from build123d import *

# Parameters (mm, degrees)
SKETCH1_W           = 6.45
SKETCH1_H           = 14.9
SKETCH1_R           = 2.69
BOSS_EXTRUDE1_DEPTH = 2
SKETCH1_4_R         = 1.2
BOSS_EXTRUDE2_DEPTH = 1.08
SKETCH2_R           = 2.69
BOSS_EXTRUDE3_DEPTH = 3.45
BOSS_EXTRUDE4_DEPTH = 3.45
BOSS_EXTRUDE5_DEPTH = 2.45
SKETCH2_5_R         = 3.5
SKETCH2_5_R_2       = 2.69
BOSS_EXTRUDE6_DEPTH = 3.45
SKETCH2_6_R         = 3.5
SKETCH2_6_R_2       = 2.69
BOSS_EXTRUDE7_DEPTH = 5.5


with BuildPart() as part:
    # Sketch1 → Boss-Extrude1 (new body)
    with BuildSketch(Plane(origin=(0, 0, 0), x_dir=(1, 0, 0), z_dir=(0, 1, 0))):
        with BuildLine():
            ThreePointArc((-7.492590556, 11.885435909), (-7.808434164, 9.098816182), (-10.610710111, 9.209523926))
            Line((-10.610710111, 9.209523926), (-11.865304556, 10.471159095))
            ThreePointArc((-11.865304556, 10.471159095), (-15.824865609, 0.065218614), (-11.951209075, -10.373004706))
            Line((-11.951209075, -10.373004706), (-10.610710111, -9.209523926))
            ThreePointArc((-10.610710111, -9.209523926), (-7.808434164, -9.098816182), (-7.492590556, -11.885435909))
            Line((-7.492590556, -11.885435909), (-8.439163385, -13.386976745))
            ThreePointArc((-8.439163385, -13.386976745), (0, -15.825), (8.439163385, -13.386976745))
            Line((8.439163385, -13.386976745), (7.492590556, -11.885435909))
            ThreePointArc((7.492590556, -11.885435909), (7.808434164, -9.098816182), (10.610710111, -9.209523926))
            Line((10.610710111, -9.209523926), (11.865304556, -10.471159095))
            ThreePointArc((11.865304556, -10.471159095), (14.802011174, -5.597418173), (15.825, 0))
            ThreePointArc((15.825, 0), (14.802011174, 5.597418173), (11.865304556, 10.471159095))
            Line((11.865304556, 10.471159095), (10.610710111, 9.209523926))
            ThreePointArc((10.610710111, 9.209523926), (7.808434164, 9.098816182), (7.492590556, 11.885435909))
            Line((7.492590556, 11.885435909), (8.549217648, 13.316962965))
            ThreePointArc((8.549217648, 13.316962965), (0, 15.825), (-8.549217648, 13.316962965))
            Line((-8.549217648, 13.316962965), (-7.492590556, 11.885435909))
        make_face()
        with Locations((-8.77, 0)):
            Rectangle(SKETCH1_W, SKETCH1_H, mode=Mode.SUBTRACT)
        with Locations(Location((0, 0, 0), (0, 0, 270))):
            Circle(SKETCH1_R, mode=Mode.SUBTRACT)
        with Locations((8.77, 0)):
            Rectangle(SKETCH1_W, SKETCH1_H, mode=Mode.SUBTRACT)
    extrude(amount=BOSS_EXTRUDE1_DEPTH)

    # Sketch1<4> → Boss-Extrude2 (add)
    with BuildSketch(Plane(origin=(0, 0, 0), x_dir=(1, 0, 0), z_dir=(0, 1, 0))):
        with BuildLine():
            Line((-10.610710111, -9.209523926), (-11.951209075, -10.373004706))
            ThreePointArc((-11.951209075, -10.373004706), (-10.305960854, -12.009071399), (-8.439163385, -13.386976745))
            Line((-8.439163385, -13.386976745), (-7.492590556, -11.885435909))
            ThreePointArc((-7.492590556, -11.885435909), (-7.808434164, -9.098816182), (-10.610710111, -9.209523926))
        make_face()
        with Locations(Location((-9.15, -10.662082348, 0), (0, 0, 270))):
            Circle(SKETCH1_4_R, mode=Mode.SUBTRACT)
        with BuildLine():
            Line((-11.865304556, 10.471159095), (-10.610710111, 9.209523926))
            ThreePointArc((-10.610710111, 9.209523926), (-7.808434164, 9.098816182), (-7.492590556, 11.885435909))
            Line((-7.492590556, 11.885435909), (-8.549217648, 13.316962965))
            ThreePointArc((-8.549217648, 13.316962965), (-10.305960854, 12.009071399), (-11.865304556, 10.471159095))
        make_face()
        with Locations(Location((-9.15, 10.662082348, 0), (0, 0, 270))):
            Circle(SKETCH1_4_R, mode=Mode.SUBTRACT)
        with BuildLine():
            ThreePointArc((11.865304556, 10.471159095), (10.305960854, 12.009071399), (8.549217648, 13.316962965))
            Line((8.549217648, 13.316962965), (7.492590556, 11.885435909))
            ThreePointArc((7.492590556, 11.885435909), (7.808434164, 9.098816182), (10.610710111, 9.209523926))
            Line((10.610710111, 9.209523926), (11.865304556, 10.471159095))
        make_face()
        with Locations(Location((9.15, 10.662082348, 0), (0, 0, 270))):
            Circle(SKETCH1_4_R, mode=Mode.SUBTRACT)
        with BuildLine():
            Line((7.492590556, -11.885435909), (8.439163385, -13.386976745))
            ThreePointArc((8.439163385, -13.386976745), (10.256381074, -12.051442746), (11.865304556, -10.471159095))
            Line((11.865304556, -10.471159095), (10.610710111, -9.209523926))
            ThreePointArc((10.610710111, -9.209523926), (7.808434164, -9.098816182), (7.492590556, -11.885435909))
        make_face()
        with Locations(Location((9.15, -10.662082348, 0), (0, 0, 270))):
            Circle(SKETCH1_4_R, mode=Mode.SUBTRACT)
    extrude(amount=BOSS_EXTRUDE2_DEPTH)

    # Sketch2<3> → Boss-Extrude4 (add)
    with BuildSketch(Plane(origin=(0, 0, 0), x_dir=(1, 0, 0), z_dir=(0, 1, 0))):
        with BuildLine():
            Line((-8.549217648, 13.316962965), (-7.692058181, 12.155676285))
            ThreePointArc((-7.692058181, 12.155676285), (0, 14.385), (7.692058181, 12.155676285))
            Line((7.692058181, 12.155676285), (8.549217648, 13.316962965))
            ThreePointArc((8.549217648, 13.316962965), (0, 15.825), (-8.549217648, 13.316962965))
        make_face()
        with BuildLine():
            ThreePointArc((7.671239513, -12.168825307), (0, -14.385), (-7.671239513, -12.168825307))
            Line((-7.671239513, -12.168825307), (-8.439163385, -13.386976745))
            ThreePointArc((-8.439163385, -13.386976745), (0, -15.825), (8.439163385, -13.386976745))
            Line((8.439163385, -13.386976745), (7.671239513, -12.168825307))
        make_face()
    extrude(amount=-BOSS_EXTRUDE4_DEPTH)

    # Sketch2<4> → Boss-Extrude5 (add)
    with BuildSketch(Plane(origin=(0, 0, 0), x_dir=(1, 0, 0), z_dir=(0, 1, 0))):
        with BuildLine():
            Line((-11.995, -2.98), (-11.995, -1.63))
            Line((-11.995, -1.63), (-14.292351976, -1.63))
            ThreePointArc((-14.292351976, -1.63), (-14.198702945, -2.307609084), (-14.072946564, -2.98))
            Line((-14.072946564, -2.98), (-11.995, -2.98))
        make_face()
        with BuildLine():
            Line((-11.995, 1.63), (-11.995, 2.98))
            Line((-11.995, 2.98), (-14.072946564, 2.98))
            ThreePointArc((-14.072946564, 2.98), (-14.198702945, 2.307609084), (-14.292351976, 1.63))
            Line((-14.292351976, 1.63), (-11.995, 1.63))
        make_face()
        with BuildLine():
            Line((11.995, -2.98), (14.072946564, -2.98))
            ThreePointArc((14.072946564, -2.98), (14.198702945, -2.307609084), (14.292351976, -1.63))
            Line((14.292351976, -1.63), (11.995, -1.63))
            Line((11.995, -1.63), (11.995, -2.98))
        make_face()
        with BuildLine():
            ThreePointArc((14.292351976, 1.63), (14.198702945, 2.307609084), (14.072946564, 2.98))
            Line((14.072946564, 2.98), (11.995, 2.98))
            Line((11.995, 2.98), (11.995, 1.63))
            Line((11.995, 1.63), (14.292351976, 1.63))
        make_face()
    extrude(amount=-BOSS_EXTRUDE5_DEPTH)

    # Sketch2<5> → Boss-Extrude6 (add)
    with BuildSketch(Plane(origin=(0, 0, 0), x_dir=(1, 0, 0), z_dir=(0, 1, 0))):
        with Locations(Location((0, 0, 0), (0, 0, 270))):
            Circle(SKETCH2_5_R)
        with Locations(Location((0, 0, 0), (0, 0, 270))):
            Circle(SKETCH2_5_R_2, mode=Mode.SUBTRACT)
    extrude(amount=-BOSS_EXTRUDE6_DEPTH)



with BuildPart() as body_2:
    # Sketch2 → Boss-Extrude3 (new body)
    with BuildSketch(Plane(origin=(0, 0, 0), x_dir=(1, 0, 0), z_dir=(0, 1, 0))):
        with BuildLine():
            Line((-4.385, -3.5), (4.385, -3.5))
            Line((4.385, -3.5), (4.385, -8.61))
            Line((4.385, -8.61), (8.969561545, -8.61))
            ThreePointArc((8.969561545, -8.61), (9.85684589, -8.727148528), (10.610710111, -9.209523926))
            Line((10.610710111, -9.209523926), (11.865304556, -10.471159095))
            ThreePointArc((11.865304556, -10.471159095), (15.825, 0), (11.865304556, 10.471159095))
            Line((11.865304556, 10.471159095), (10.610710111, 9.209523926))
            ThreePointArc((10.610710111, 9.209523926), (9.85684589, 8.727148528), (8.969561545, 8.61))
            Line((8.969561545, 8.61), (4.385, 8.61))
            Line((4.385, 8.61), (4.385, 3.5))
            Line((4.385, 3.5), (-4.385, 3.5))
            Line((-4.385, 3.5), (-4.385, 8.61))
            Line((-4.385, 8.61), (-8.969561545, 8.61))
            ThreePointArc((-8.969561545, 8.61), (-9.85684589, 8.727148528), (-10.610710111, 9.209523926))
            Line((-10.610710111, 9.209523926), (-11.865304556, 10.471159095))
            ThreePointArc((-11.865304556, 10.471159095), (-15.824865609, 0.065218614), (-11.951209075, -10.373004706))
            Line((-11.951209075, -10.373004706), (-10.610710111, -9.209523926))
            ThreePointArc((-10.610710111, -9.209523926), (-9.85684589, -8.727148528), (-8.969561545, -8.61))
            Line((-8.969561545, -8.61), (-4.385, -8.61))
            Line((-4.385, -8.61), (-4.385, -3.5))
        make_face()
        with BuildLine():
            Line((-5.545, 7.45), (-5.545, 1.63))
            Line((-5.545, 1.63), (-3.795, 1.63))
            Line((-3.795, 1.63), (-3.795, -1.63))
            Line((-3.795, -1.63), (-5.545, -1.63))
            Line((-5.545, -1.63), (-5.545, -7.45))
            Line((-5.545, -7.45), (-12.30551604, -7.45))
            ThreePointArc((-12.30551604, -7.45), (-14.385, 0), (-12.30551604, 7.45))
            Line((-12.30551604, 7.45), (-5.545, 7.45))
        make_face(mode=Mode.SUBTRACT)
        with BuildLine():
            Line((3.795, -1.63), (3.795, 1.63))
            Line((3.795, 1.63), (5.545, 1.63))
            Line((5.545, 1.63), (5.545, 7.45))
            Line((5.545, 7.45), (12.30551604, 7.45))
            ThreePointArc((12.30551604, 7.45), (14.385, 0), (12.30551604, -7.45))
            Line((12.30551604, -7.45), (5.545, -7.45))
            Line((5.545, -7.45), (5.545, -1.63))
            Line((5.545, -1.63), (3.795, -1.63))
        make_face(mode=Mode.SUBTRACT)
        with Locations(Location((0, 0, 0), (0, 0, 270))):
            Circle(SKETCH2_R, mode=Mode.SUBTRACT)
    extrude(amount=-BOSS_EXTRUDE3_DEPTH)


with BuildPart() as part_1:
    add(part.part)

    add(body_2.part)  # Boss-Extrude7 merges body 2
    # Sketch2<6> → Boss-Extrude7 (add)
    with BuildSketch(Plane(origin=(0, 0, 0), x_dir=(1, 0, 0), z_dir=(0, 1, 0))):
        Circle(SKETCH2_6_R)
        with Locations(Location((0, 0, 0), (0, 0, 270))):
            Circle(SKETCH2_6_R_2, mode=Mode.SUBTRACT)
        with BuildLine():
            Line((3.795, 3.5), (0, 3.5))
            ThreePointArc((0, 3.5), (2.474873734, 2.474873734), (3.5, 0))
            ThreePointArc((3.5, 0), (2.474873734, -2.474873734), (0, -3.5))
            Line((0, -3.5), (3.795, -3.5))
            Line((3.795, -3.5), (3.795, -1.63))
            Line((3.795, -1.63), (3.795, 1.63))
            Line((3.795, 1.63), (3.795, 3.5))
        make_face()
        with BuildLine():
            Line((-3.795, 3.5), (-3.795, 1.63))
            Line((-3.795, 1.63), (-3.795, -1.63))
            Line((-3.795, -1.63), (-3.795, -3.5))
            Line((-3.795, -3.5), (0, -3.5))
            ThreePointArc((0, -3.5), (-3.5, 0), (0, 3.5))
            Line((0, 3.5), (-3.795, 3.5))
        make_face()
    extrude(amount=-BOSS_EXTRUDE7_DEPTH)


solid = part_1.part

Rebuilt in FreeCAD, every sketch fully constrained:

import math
import FreeCAD as App
import Part
import Sketcher

V = App.Vector
Q = App.Units.Quantity


def add_polygon(sketch, points):
    """Adds a closed chain of lines whose ends are joined by coincident constraints."""
    first, n = sketch.GeometryCount, len(points)
    for a, b in zip(points, points[1:] + points[:1]):
        sketch.addGeometry(Part.LineSegment(App.Vector(*a, 0), App.Vector(*b, 0)), False)
    for i in range(n):
        sketch.addConstraint(Sketcher.Constraint("Coincident", first + i, 2, first + (i + 1) % n, 1))

doc = App.newDocument("Part")
body = doc.addObject("PartDesign::Body", "Body")

# Sketch on XZ plane
sketch1 = body.newObject("Sketcher::SketchObject", "Sketch")
sketch1.AttachmentSupport = (doc.getObject("XZ_Plane"), [""])
sketch1.MapMode = "FlatFace"
sketch1.addGeometry(Part.ArcOfCircle(Part.Circle(V(-9.15, -10.662082, 0), V(0, 0, 1), 2.06), math.radians(-36.431474), math.radians(135.16032)), False)  # 0
sketch1.addGeometry(Part.LineSegment(V(-10.61071, -9.209524, 0), V(-11.865305, -10.471159, 0)), False)  # 1
sketch1.addGeometry(Part.ArcOfCircle(Part.Circle(V(0, 0, 0), V(0, 0, 1), 15.825), math.radians(139.043782), math.radians(221.428478)), False)  # 2
sketch1.addGeometry(Part.LineSegment(V(-11.951209, 10.373005, 0), V(-10.61071, 9.209524, 0)), False)  # 3
sketch1.addGeometry(Part.ArcOfCircle(Part.Circle(V(-9.15, 10.662082, 0), V(0, 0, 1), 2.06), math.radians(-135.16032), math.radians(36.431474)), False)  # 4
sketch1.addGeometry(Part.LineSegment(V(-7.492591, 11.885436, 0), V(-8.439163, 13.386977, 0)), False)  # 5
sketch1.addGeometry(Part.ArcOfCircle(Part.Circle(V(0, 0, 0), V(0, 0, 1), 15.825), math.radians(57.772628), math.radians(122.227372)), False)  # 6
sketch1.addGeometry(Part.LineSegment(V(8.439163, 13.386977, 0), V(7.492591, 11.885436, 0)), False)  # 7
sketch1.addGeometry(Part.ArcOfCircle(Part.Circle(V(9.15, 10.662082, 0), V(0, 0, 1), 2.06), math.radians(143.568526), math.radians(315.16032)), False)  # 8
sketch1.addGeometry(Part.LineSegment(V(10.61071, 9.209524, 0), V(11.865305, 10.471159, 0)), False)  # 9
sketch1.addGeometry(Part.ArcOfCircle(Part.Circle(V(0, 0, 0), V(0, 0, 1), 15.825), math.radians(0), math.radians(41.428478)), False)  # 10
sketch1.addGeometry(Part.ArcOfCircle(Part.Circle(V(0, 0, 0), V(0, 0, 1), 15.825), math.radians(-41.428478), math.radians(0)), False)  # 11
sketch1.addGeometry(Part.LineSegment(V(11.865305, -10.471159, 0), V(10.61071, -9.209524, 0)), False)  # 12
sketch1.addGeometry(Part.ArcOfCircle(Part.Circle(V(9.15, -10.662082, 0), V(0, 0, 1), 2.06), math.radians(44.83968), math.radians(216.431474)), False)  # 13
sketch1.addGeometry(Part.LineSegment(V(7.492591, -11.885436, 0), V(8.549218, -13.316963, 0)), False)  # 14
sketch1.addGeometry(Part.ArcOfCircle(Part.Circle(V(0, 0, 0), V(0, 0, 1), 15.825), math.radians(-122.699632), math.radians(-57.300368)), False)  # 15
sketch1.addGeometry(Part.LineSegment(V(-8.549218, -13.316963, 0), V(-7.492591, -11.885436, 0)), False)  # 16
add_polygon(sketch1, [(-5.545, 7.45), (-11.995, 7.45), (-11.995, -7.45), (-5.545, -7.45)])  # lines 17-20
sketch1.addGeometry(Part.Circle(V(0, 0, 0), V(0, 0, 1), 2.69), False)  # 21
add_polygon(sketch1, [(11.995, 7.45), (5.545, 7.45), (5.545, -7.45), (11.995, -7.45)])  # lines 22-25
sketch1.addConstraint([
    Sketcher.Constraint("Tangent", 0, 2, 1, 1),
    Sketcher.Constraint("Coincident", 1, 2, 2, 2),
    Sketcher.Constraint("Coincident", 2, 1, 3, 1),
    Sketcher.Constraint("Coincident", 3, 2, 4, 1),
    Sketcher.Constraint("Coincident", 4, 2, 5, 1),
    Sketcher.Constraint("Coincident", 5, 2, 6, 2),
    Sketcher.Constraint("Coincident", 6, 1, 7, 1),
    Sketcher.Constraint("Coincident", 7, 2, 8, 1),
    Sketcher.Constraint("Tangent", 8, 2, 9, 1),
    Sketcher.Constraint("Coincident", 9, 2, 10, 2),
    Sketcher.Constraint("Tangent", 10, 1, 11, 2),
    Sketcher.Constraint("Coincident", 11, 1, 12, 1),
    Sketcher.Constraint("Tangent", 12, 2, 13, 1),
    Sketcher.Constraint("Tangent", 13, 2, 14, 1),
    Sketcher.Constraint("Coincident", 14, 2, 15, 2),
    Sketcher.Constraint("Coincident", 15, 1, 16, 1),
    Sketcher.Constraint("Tangent", 16, 2, 0, 1),
    Sketcher.Constraint("Horizontal", 17),
    Sketcher.Constraint("Vertical", 18),
    Sketcher.Constraint("Horizontal", 19),
    Sketcher.Constraint("Vertical", 20),
    Sketcher.Constraint("Horizontal", 22),
    Sketcher.Constraint("Vertical", 23),
    Sketcher.Constraint("Horizontal", 24),
    Sketcher.Constraint("Vertical", 25),
    Sketcher.Constraint("Coincident", 2, 3, -1, 1),
    Sketcher.Constraint("Coincident", 6, 3, -1, 1),
    Sketcher.Constraint("Coincident", 10, 3, -1, 1),
    Sketcher.Constraint("Coincident", 15, 3, -1, 1),
    Sketcher.Constraint("Coincident", 21, 3, -1, 1),
    Sketcher.Constraint("Equal", 0, 4),
    Sketcher.Constraint("Equal", 2, 6),
    Sketcher.Constraint("Equal", 4, 8),
    Sketcher.Constraint("Equal", 6, 10),
    Sketcher.Constraint("Equal", 10, 11),
    Sketcher.Constraint("Equal", 8, 13),
    Sketcher.Constraint("Equal", 11, 15),
    Sketcher.Constraint("Symmetric", 0, 3, 8, 3, -1, 1),
    Sketcher.Constraint("Symmetric", 4, 3, 13, 3, -1, 1),
    Sketcher.Constraint("Symmetric", 19, 2, 22, 2, -1, 1),
    Sketcher.Constraint("Symmetric", 17, 2, 24, 2, -1, 1),
    Sketcher.Constraint("Symmetric", 4, 3, 8, 3, -2),
    Sketcher.Constraint("PointOnObject", 10, 1, -1),
    Sketcher.Constraint("Parallel", 1, 9),
    Sketcher.Constraint("Horizontal", 5, 2, 6, 1),
    Sketcher.Constraint("Horizontal", 4, 2, 7, 2),
    Sketcher.Constraint("Horizontal", 3, 2, 8, 2),
    Sketcher.Constraint("Horizontal", 1, 2, 11, 1),
    Sketcher.Constraint("Horizontal", 14, 2, 15, 1),
    Sketcher.Constraint("Horizontal", 20, 2, 22, 2),
    Sketcher.Constraint("Vertical", 7, 2, 13, 2),
    Sketcher.Constraint("Equal", 3, 5),
    Sketcher.Constraint("Diameter", 21, Q("5.38 mm")),
    Sketcher.Constraint("Radius", 0, Q("2.06 mm")),
    Sketcher.Constraint("DistanceY", 18, 2, 18, 1, Q("14.9 mm")),
    Sketcher.Constraint("Radius", 2, Q("15.825 mm")),
    Sketcher.Constraint("DistanceX", 17, 2, 17, 1, Q("6.45 mm")),
    Sketcher.Constraint("DistanceX", 4, 3, 8, 3, Q("18.3 mm")),
    Sketcher.Constraint("Distance", 3, Q("1.775 mm")),
    Sketcher.Constraint("DistanceX", 17, 2, -1, 1, Q("11.995 mm")),
    Sketcher.Constraint("DistanceX", 2, 1, 3, 2, Q("1.340499 mm")),
    Sketcher.Constraint("Distance", 1, Q("1.77925 mm")),
    Sketcher.Constraint("DistanceY", 4, 2, 5, 2, Q("1.501541 mm")),
])
pad1 = body.newObject("PartDesign::Pad", "Pad")
pad1.Profile = sketch1
pad1.Length = 2
pad1.Reversed = True

# Sketch on XZ plane
sketch2 = body.newObject("Sketcher::SketchObject", "Sketch001")
sketch2.AttachmentSupport = (doc.getObject("XZ_Plane"), [""])
sketch2.MapMode = "FlatFace"
sketch2.addGeometry([
    Part.LineSegment(V(-10.61071, 9.209524, 0), V(-11.951209, 10.373005, 0)),  # 0
    Part.ArcOfCircle(Part.Circle(V(0, 0, 0), V(0, 0, 1), 15.825), math.radians(122.227372), math.radians(139.043782)),  # 1
    Part.LineSegment(V(-8.439163, 13.386977, 0), V(-7.492591, 11.885436, 0)),  # 2
    Part.ArcOfCircle(Part.Circle(V(-9.15, 10.662082, 0), V(0, 0, 1), 2.06), math.radians(-135.16032), math.radians(36.431474)),  # 3
    Part.Circle(V(-9.15, 10.662082, 0), V(0, 0, 1), 1.2),  # 4
    Part.LineSegment(V(-11.865305, -10.471159, 0), V(-10.61071, -9.209524, 0)),  # 5
    Part.ArcOfCircle(Part.Circle(V(-9.15, -10.662082, 0), V(0, 0, 1), 2.06), math.radians(-36.431474), math.radians(135.16032)),  # 6
    Part.LineSegment(V(-7.492591, -11.885436, 0), V(-8.549218, -13.316963, 0)),  # 7
    Part.ArcOfCircle(Part.Circle(V(0, 0, 0), V(0, 0, 1), 15.825), math.radians(-138.571522), math.radians(-122.699632)),  # 8
    Part.Circle(V(-9.15, -10.662082, 0), V(0, 0, 1), 1.2),  # 9
    Part.ArcOfCircle(Part.Circle(V(0, 0, 0), V(0, 0, 1), 15.825), math.radians(-57.300368), math.radians(-41.428478)),  # 10
    Part.LineSegment(V(8.549218, -13.316963, 0), V(7.492591, -11.885436, 0)),  # 11
    Part.ArcOfCircle(Part.Circle(V(9.15, -10.662082, 0), V(0, 0, 1), 2.06), math.radians(44.83968), math.radians(216.431474)),  # 12
    Part.LineSegment(V(10.61071, -9.209524, 0), V(11.865305, -10.471159, 0)),  # 13
    Part.Circle(V(9.15, -10.662082, 0), V(0, 0, 1), 1.2),  # 14
    Part.LineSegment(V(7.492591, 11.885436, 0), V(8.439163, 13.386977, 0)),  # 15
    Part.ArcOfCircle(Part.Circle(V(0, 0, 0), V(0, 0, 1), 15.825), math.radians(41.428478), math.radians(57.772628)),  # 16
    Part.LineSegment(V(11.865305, 10.471159, 0), V(10.61071, 9.209524, 0)),  # 17
    Part.ArcOfCircle(Part.Circle(V(9.15, 10.662082, 0), V(0, 0, 1), 2.06), math.radians(143.568526), math.radians(315.16032)),  # 18
    Part.Circle(V(9.15, 10.662082, 0), V(0, 0, 1), 1.2),  # 19
], False)
sketch2.addConstraint([
    Sketcher.Constraint("Coincident", 0, 2, 1, 2),
    Sketcher.Constraint("Coincident", 1, 1, 2, 1),
    Sketcher.Constraint("Coincident", 2, 2, 3, 2),
    Sketcher.Constraint("Coincident", 3, 1, 0, 1),
    Sketcher.Constraint("Tangent", 5, 2, 6, 2),
    Sketcher.Constraint("Tangent", 6, 1, 7, 1),
    Sketcher.Constraint("Coincident", 7, 2, 8, 2),
    Sketcher.Constraint("Coincident", 8, 1, 5, 1),
    Sketcher.Constraint("Coincident", 10, 1, 11, 1),
    Sketcher.Constraint("Tangent", 11, 2, 12, 2),
    Sketcher.Constraint("Tangent", 12, 1, 13, 1),
    Sketcher.Constraint("Coincident", 13, 2, 10, 2),
    Sketcher.Constraint("Coincident", 15, 2, 16, 2),
    Sketcher.Constraint("Coincident", 16, 1, 17, 1),
    Sketcher.Constraint("Tangent", 17, 2, 18, 2),
    Sketcher.Constraint("Coincident", 18, 1, 15, 1),
    Sketcher.Constraint("Coincident", 1, 3, -1, 1),
    Sketcher.Constraint("Coincident", 8, 3, -1, 1),
    Sketcher.Constraint("Coincident", 10, 3, -1, 1),
    Sketcher.Constraint("Coincident", 16, 3, -1, 1),
    Sketcher.Constraint("Coincident", 4, 3, 3, 3),
    Sketcher.Constraint("Coincident", 9, 3, 6, 3),
    Sketcher.Constraint("Coincident", 14, 3, 12, 3),
    Sketcher.Constraint("Coincident", 19, 3, 18, 3),
    Sketcher.Constraint("Equal", 3, 6),
    Sketcher.Constraint("Equal", 1, 8),
    Sketcher.Constraint("Equal", 4, 9),
    Sketcher.Constraint("Equal", 8, 10),
    Sketcher.Constraint("Equal", 6, 12),
    Sketcher.Constraint("Equal", 9, 14),
    Sketcher.Constraint("Equal", 10, 16),
    Sketcher.Constraint("Equal", 12, 18),
    Sketcher.Constraint("Equal", 14, 19),
    Sketcher.Constraint("Symmetric", 3, 3, 12, 3, -1, 1),
    Sketcher.Constraint("Symmetric", 6, 3, 18, 3, -1, 1),
    Sketcher.Constraint("Symmetric", 6, 3, 12, 3, -2),
    Sketcher.Constraint("Parallel", 5, 17),
    Sketcher.Constraint("Horizontal", 7, 2, 10, 1),
    Sketcher.Constraint("Horizontal", 5, 2, 12, 1),
    Sketcher.Constraint("Horizontal", 1, 1, 15, 2),
    Sketcher.Constraint("Horizontal", 3, 1, 17, 2),
    Sketcher.Constraint("Horizontal", 2, 2, 18, 1),
    Sketcher.Constraint("Vertical", 2, 2, 6, 1),
    Sketcher.Constraint("Equal", 0, 2),
    Sketcher.Constraint("Diameter", 4, Q("2.4 mm")),
    Sketcher.Constraint("Radius", 3, Q("2.06 mm")),
    Sketcher.Constraint("Radius", 1, Q("15.825 mm")),
    Sketcher.Constraint("DistanceX", 6, 3, 12, 3, Q("18.3 mm")),
    Sketcher.Constraint("Distance", 0, Q("1.775 mm")),
    Sketcher.Constraint("DistanceX", 0, 2, 3, 1, Q("1.340499 mm")),
    Sketcher.Constraint("Distance", 5, Q("1.77925 mm")),
    Sketcher.Constraint("DistanceY", 2, 2, 1, 1, Q("1.501541 mm")),
])
pad2 = body.newObject("PartDesign::Pad", "Pad001")
pad2.Profile = sketch2
pad2.Length = 1.08
pad2.Reversed = True

# Sketch on XZ plane
sketch3 = body.newObject("Sketcher::SketchObject", "Sketch002")
sketch3.AttachmentSupport = (doc.getObject("XZ_Plane"), [""])
sketch3.MapMode = "FlatFace"
sketch3.addGeometry([
    Part.LineSegment(V(-8.549218, -13.316963, 0), V(-7.692058, -12.155676, 0)),  # 0
    Part.ArcOfCircle(Part.Circle(V(0, 0, 0), V(0, 0, 1), 14.385), math.radians(-122.325448), math.radians(-57.674552)),  # 1
    Part.LineSegment(V(7.692058, -12.155676, 0), V(8.549218, -13.316963, 0)),  # 2
    Part.ArcOfCircle(Part.Circle(V(0, 0, 0), V(0, 0, 1), 15.825), math.radians(-122.699632), math.radians(-57.300368)),  # 3
    Part.ArcOfCircle(Part.Circle(V(0, 0, 0), V(0, 0, 1), 14.385), math.radians(57.772628), math.radians(122.227372)),  # 4
    Part.LineSegment(V(-7.67124, 12.168825, 0), V(-8.439163, 13.386977, 0)),  # 5
    Part.ArcOfCircle(Part.Circle(V(0, 0, 0), V(0, 0, 1), 15.825), math.radians(57.772628), math.radians(122.227372)),  # 6
    Part.LineSegment(V(8.439163, 13.386977, 0), V(7.67124, 12.168825, 0)),  # 7
], False)
sketch3.addConstraint([
    Sketcher.Constraint("Coincident", 0, 2, 1, 1),
    Sketcher.Constraint("Coincident", 1, 2, 2, 1),
    Sketcher.Constraint("Coincident", 2, 2, 3, 2),
    Sketcher.Constraint("Coincident", 3, 1, 0, 1),
    Sketcher.Constraint("Coincident", 4, 2, 5, 1),
    Sketcher.Constraint("Coincident", 5, 2, 6, 2),
    Sketcher.Constraint("Coincident", 6, 1, 7, 1),
    Sketcher.Constraint("Coincident", 7, 2, 4, 1),
    Sketcher.Constraint("Coincident", 1, 3, -1, 1),
    Sketcher.Constraint("Coincident", 3, 3, -1, 1),
    Sketcher.Constraint("Coincident", 4, 3, -1, 1),
    Sketcher.Constraint("Coincident", 6, 3, -1, 1),
    Sketcher.Constraint("Equal", 1, 4),
    Sketcher.Constraint("Equal", 3, 6),
    Sketcher.Constraint("Horizontal", 0, 2, 1, 2),
    Sketcher.Constraint("Horizontal", 2, 2, 3, 1),
    Sketcher.Constraint("Horizontal", 5, 2, 6, 1),
    Sketcher.Constraint("Horizontal", 4, 2, 7, 2),
    Sketcher.Constraint("Radius", 1, Q("14.385 mm")),
    Sketcher.Constraint("Radius", 3, Q("15.825 mm")),
    Sketcher.Constraint("DistanceY", 0, 2, 4, 2, Q("24.324502 mm")),
    Sketcher.Constraint("DistanceX", 0, 2, -1, 1, Q("7.692058 mm")),
    Sketcher.Constraint("DistanceX", 1, 2, 2, 2, Q("0.857159 mm")),
    Sketcher.Constraint("DistanceY", 4, 2, 5, 2, Q("1.218151 mm")),
])
pad3 = body.newObject("PartDesign::Pad", "Pad002")
pad3.Profile = sketch3
pad3.Length = 3.45

# Sketch on XZ plane
sketch4 = body.newObject("Sketcher::SketchObject", "Sketch003")
sketch4.AttachmentSupport = (doc.getObject("XZ_Plane"), [""])
sketch4.MapMode = "FlatFace"
sketch4.addGeometry([
    Part.LineSegment(V(-11.995, 2.98, 0), V(-11.995, 1.63, 0)),  # 0
    Part.LineSegment(V(-11.995, 1.63, 0), V(-14.292352, 1.63, 0)),  # 1
    Part.ArcOfCircle(Part.Circle(V(0, 0, 0), V(0, 0, 1), 14.385), math.radians(168.044013), math.radians(173.493699)),  # 2
    Part.LineSegment(V(-14.072947, 2.98, 0), V(-11.995, 2.98, 0)),  # 3
    Part.LineSegment(V(-11.995, -1.63, 0), V(-11.995, -2.98, 0)),  # 4
    Part.LineSegment(V(-11.995, -2.98, 0), V(-14.072947, -2.98, 0)),  # 5
    Part.ArcOfCircle(Part.Circle(V(0, 0, 0), V(0, 0, 1), 14.385), math.radians(-173.493699), math.radians(-168.044013)),  # 6
    Part.LineSegment(V(-14.292352, -1.63, 0), V(-11.995, -1.63, 0)),  # 7
    Part.LineSegment(V(11.995, 2.98, 0), V(14.072947, 2.98, 0)),  # 8
    Part.ArcOfCircle(Part.Circle(V(0, 0, 0), V(0, 0, 1), 14.385), math.radians(6.506301), math.radians(11.955987)),  # 9
    Part.LineSegment(V(14.292352, 1.63, 0), V(11.995, 1.63, 0)),  # 10
    Part.LineSegment(V(11.995, 1.63, 0), V(11.995, 2.98, 0)),  # 11
    Part.ArcOfCircle(Part.Circle(V(0, 0, 0), V(0, 0, 1), 14.385), math.radians(-11.955987), math.radians(-6.506301)),  # 12
    Part.LineSegment(V(14.072947, -2.98, 0), V(11.995, -2.98, 0)),  # 13
    Part.LineSegment(V(11.995, -2.98, 0), V(11.995, -1.63, 0)),  # 14
    Part.LineSegment(V(11.995, -1.63, 0), V(14.292352, -1.63, 0)),  # 15
], False)
sketch4.addConstraint([
    Sketcher.Constraint("Coincident", 0, 2, 1, 1),
    Sketcher.Constraint("Coincident", 1, 2, 2, 2),
    Sketcher.Constraint("Coincident", 2, 1, 3, 1),
    Sketcher.Constraint("Coincident", 3, 2, 0, 1),
    Sketcher.Constraint("Coincident", 4, 2, 5, 1),
    Sketcher.Constraint("Coincident", 5, 2, 6, 2),
    Sketcher.Constraint("Coincident", 6, 1, 7, 1),
    Sketcher.Constraint("Coincident", 7, 2, 4, 1),
    Sketcher.Constraint("Coincident", 8, 2, 9, 2),
    Sketcher.Constraint("Coincident", 9, 1, 10, 1),
    Sketcher.Constraint("Coincident", 10, 2, 11, 1),
    Sketcher.Constraint("Coincident", 11, 2, 8, 1),
    Sketcher.Constraint("Coincident", 12, 1, 13, 1),
    Sketcher.Constraint("Coincident", 13, 2, 14, 1),
    Sketcher.Constraint("Coincident", 14, 2, 15, 1),
    Sketcher.Constraint("Coincident", 15, 2, 12, 2),
    Sketcher.Constraint("Vertical", 0),
    Sketcher.Constraint("Horizontal", 1),
    Sketcher.Constraint("Horizontal", 3),
    Sketcher.Constraint("Vertical", 4),
    Sketcher.Constraint("Horizontal", 5),
    Sketcher.Constraint("Horizontal", 7),
    Sketcher.Constraint("Horizontal", 8),
    Sketcher.Constraint("Horizontal", 10),
    Sketcher.Constraint("Vertical", 11),
    Sketcher.Constraint("Horizontal", 13),
    Sketcher.Constraint("Vertical", 14),
    Sketcher.Constraint("Horizontal", 15),
    Sketcher.Constraint("Coincident", 2, 3, -1, 1),
    Sketcher.Constraint("Coincident", 6, 3, -1, 1),
    Sketcher.Constraint("Coincident", 9, 3, -1, 1),
    Sketcher.Constraint("Coincident", 12, 3, -1, 1),
    Sketcher.Constraint("Equal", 2, 6),
    Sketcher.Constraint("Equal", 6, 9),
    Sketcher.Constraint("Equal", 9, 12),
    Sketcher.Constraint("Symmetric", 7, 2, 10, 2, -1, 1),
    Sketcher.Constraint("Symmetric", 3, 2, 13, 2, -1, 1),
    Sketcher.Constraint("Symmetric", 0, 2, 10, 2, -2),
    Sketcher.Constraint("Horizontal", 3, 2, 8, 2),
    Sketcher.Constraint("Horizontal", 5, 2, 12, 1),
    Sketcher.Constraint("Horizontal", 7, 2, 14, 2),
    Sketcher.Constraint("Radius", 2, Q("14.385 mm")),
    Sketcher.Constraint("DistanceY", 0, 2, 0, 1, Q("1.35 mm")),
    Sketcher.Constraint("DistanceY", -1, 1, 0, 2, Q("1.63 mm")),
    Sketcher.Constraint("DistanceX", 0, 2, -1, 1, Q("11.995 mm")),
])
pad4 = body.newObject("PartDesign::Pad", "Pad003")
pad4.Profile = sketch4
pad4.Length = 2.45

# Sketch on XZ plane
sketch5 = body.newObject("Sketcher::SketchObject", "Sketch004")
sketch5.AttachmentSupport = (doc.getObject("XZ_Plane"), [""])
sketch5.MapMode = "FlatFace"
sketch5.addGeometry([
    Part.Circle(V(0, 0, 0), V(0, 0, 1), 3.5),
    Part.Circle(V(0, 0, 0), V(0, 0, 1), 2.69),
], False)
sketch5.addConstraint([
    Sketcher.Constraint("Coincident", 0, 3, -1, 1),
    Sketcher.Constraint("Coincident", 1, 3, -1, 1),
    Sketcher.Constraint("Diameter", 0, Q("7 mm")),
    Sketcher.Constraint("Diameter", 1, Q("5.38 mm")),
])
pad5 = body.newObject("PartDesign::Pad", "Pad004")
pad5.Profile = sketch5
pad5.Length = 3.45
body2 = doc.addObject("PartDesign::Body", "Body001")

# Sketch on XZ plane
sketch6 = body2.newObject("Sketcher::SketchObject", "Sketch005")
sketch6.AttachmentSupport = (doc.getObject("XZ_Plane001"), [""])
sketch6.MapMode = "FlatFace"
sketch6.addGeometry([
    Part.LineSegment(V(-4.385, 3.5, 0), V(4.385, 3.5, 0)),  # 0
    Part.LineSegment(V(4.385, 3.5, 0), V(4.385, 8.61, 0)),  # 1
    Part.LineSegment(V(4.385, 8.61, 0), V(8.969562, 8.61, 0)),  # 2
    Part.ArcOfCircle(Part.Circle(V(9.15, 10.662082, 0), V(0, 0, 1), 2.06), math.radians(-95.025062), math.radians(-44.83968)),  # 3
    Part.LineSegment(V(10.61071, 9.209524, 0), V(11.865305, 10.471159, 0)),  # 4
    Part.ArcOfCircle(Part.Circle(V(0, 0, 0), V(0, 0, 1), 15.825), math.radians(-41.428478), math.radians(41.428478)),  # 5
    Part.LineSegment(V(11.865305, -10.471159, 0), V(10.61071, -9.209524, 0)),  # 6
    Part.ArcOfCircle(Part.Circle(V(9.15, -10.662082, 0), V(0, 0, 1), 2.06), math.radians(44.83968), math.radians(95.025062)),  # 7
    Part.LineSegment(V(8.969562, -8.61, 0), V(4.385, -8.61, 0)),  # 8
    Part.LineSegment(V(4.385, -8.61, 0), V(4.385, -3.5, 0)),  # 9
    Part.LineSegment(V(4.385, -3.5, 0), V(-4.385, -3.5, 0)),  # 10
    Part.LineSegment(V(-4.385, -3.5, 0), V(-4.385, -8.61, 0)),  # 11
    Part.LineSegment(V(-4.385, -8.61, 0), V(-8.969562, -8.61, 0)),  # 12
    Part.ArcOfCircle(Part.Circle(V(-9.15, -10.662082, 0), V(0, 0, 1), 2.06), math.radians(84.974938), math.radians(135.16032)),  # 13
    Part.LineSegment(V(-10.61071, -9.209524, 0), V(-11.865305, -10.471159, 0)),  # 14
    Part.ArcOfCircle(Part.Circle(V(0, 0, 0), V(0, 0, 1), 15.825), math.radians(139.043782), math.radians(221.428478)),  # 15
    Part.LineSegment(V(-11.951209, 10.373005, 0), V(-10.61071, 9.209524, 0)),  # 16
    Part.ArcOfCircle(Part.Circle(V(-9.15, 10.662082, 0), V(0, 0, 1), 2.06), math.radians(-135.16032), math.radians(-84.974938)),  # 17
    Part.LineSegment(V(-8.969562, 8.61, 0), V(-4.385, 8.61, 0)),  # 18
    Part.LineSegment(V(-4.385, 8.61, 0), V(-4.385, 3.5, 0)),  # 19
    Part.LineSegment(V(-12.305516, -7.45, 0), V(-5.545, -7.45, 0)),  # 20
    Part.LineSegment(V(-5.545, -7.45, 0), V(-5.545, -1.63, 0)),  # 21
    Part.LineSegment(V(-5.545, -1.63, 0), V(-3.795, -1.63, 0)),  # 22
    Part.LineSegment(V(-3.795, -1.63, 0), V(-3.795, 1.63, 0)),  # 23
    Part.LineSegment(V(-3.795, 1.63, 0), V(-5.545, 1.63, 0)),  # 24
    Part.LineSegment(V(-5.545, 1.63, 0), V(-5.545, 7.45, 0)),  # 25
    Part.LineSegment(V(-5.545, 7.45, 0), V(-12.305516, 7.45, 0)),  # 26
    Part.ArcOfCircle(Part.Circle(V(0, 0, 0), V(0, 0, 1), 14.385), math.radians(148.808468), math.radians(211.191532)),  # 27
    Part.Circle(V(0, 0, 0), V(0, 0, 1), 2.69),  # 28
    Part.LineSegment(V(5.545, 1.63, 0), V(3.795, 1.63, 0)),  # 29
    Part.LineSegment(V(3.795, 1.63, 0), V(3.795, -1.63, 0)),  # 30
    Part.LineSegment(V(3.795, -1.63, 0), V(5.545, -1.63, 0)),  # 31
    Part.LineSegment(V(5.545, -1.63, 0), V(5.545, -7.45, 0)),  # 32
    Part.LineSegment(V(5.545, -7.45, 0), V(12.305516, -7.45, 0)),  # 33
    Part.ArcOfCircle(Part.Circle(V(0, 0, 0), V(0, 0, 1), 14.385), math.radians(-31.191532), math.radians(31.191532)),  # 34
    Part.LineSegment(V(12.305516, 7.45, 0), V(5.545, 7.45, 0)),  # 35
    Part.LineSegment(V(5.545, 7.45, 0), V(5.545, 1.63, 0)),  # 36
], False)
sketch6.addConstraint([
    Sketcher.Constraint("Coincident", 0, 2, 1, 1),
    Sketcher.Constraint("Coincident", 1, 2, 2, 1),
    Sketcher.Constraint("Coincident", 2, 2, 3, 1),
    Sketcher.Constraint("Tangent", 3, 2, 4, 1),
    Sketcher.Constraint("Coincident", 4, 2, 5, 2),
    Sketcher.Constraint("Coincident", 5, 1, 6, 1),
    Sketcher.Constraint("Tangent", 6, 2, 7, 1),
    Sketcher.Constraint("Coincident", 7, 2, 8, 1),
    Sketcher.Constraint("Coincident", 8, 2, 9, 1),
    Sketcher.Constraint("Coincident", 9, 2, 10, 1),
    Sketcher.Constraint("Coincident", 10, 2, 11, 1),
    Sketcher.Constraint("Coincident", 11, 2, 12, 1),
    Sketcher.Constraint("Coincident", 12, 2, 13, 1),
    Sketcher.Constraint("Tangent", 13, 2, 14, 1),
    Sketcher.Constraint("Coincident", 14, 2, 15, 2),
    Sketcher.Constraint("Coincident", 15, 1, 16, 1),
    Sketcher.Constraint("Coincident", 16, 2, 17, 1),
    Sketcher.Constraint("Coincident", 17, 2, 18, 1),
    Sketcher.Constraint("Coincident", 18, 2, 19, 1),
    Sketcher.Constraint("Coincident", 19, 2, 0, 1),
    Sketcher.Constraint("Coincident", 20, 2, 21, 1),
    Sketcher.Constraint("Coincident", 21, 2, 22, 1),
    Sketcher.Constraint("Coincident", 22, 2, 23, 1),
    Sketcher.Constraint("Coincident", 23, 2, 24, 1),
    Sketcher.Constraint("Coincident", 24, 2, 25, 1),
    Sketcher.Constraint("Coincident", 25, 2, 26, 1),
    Sketcher.Constraint("Coincident", 26, 2, 27, 1),
    Sketcher.Constraint("Coincident", 27, 2, 20, 1),
    Sketcher.Constraint("Coincident", 29, 2, 30, 1),
    Sketcher.Constraint("Coincident", 30, 2, 31, 1),
    Sketcher.Constraint("Coincident", 31, 2, 32, 1),
    Sketcher.Constraint("Coincident", 32, 2, 33, 1),
    Sketcher.Constraint("Coincident", 33, 2, 34, 1),
    Sketcher.Constraint("Coincident", 34, 2, 35, 1),
    Sketcher.Constraint("Coincident", 35, 2, 36, 1),
    Sketcher.Constraint("Coincident", 36, 2, 29, 1),
    Sketcher.Constraint("Horizontal", 0),
    Sketcher.Constraint("Vertical", 1),
    Sketcher.Constraint("Horizontal", 2),
    Sketcher.Constraint("Horizontal", 8),
    Sketcher.Constraint("Vertical", 9),
    Sketcher.Constraint("Horizontal", 10),
    Sketcher.Constraint("Vertical", 11),
    Sketcher.Constraint("Horizontal", 12),
    Sketcher.Constraint("Horizontal", 18),
    Sketcher.Constraint("Vertical", 19),
    Sketcher.Constraint("Horizontal", 20),
    Sketcher.Constraint("Vertical", 21),
    Sketcher.Constraint("Horizontal", 22),
    Sketcher.Constraint("Vertical", 23),
    Sketcher.Constraint("Horizontal", 24),
    Sketcher.Constraint("Vertical", 25),
    Sketcher.Constraint("Horizontal", 26),
    Sketcher.Constraint("Horizontal", 29),
    Sketcher.Constraint("Vertical", 30),
    Sketcher.Constraint("Horizontal", 31),
    Sketcher.Constraint("Vertical", 32),
    Sketcher.Constraint("Horizontal", 33),
    Sketcher.Constraint("Horizontal", 35),
    Sketcher.Constraint("Vertical", 36),
    Sketcher.Constraint("Coincident", 5, 3, -1, 1),
    Sketcher.Constraint("Coincident", 15, 3, -1, 1),
    Sketcher.Constraint("Coincident", 27, 3, -1, 1),
    Sketcher.Constraint("Coincident", 28, 3, -1, 1),
    Sketcher.Constraint("Coincident", 34, 3, -1, 1),
    Sketcher.Constraint("Equal", 3, 7),
    Sketcher.Constraint("Equal", 7, 13),
    Sketcher.Constraint("Equal", 5, 15),
    Sketcher.Constraint("Equal", 13, 17),
    Sketcher.Constraint("Equal", 27, 34),
    Sketcher.Constraint("Symmetric", 3, 3, 13, 3, -1, 1),
    Sketcher.Constraint("Symmetric", 7, 3, 17, 3, -1, 1),
    Sketcher.Constraint("Symmetric", 0, 2, 10, 2, -1, 1),
    Sketcher.Constraint("Symmetric", 8, 2, 18, 2, -1, 1),
    Sketcher.Constraint("Symmetric", 22, 2, 29, 2, -1, 1),
    Sketcher.Constraint("Symmetric", 24, 2, 31, 2, -1, 1),
    Sketcher.Constraint("Symmetric", 20, 2, 35, 2, -1, 1),
    Sketcher.Constraint("Symmetric", 7, 3, 13, 3, -2),
    Sketcher.Constraint("Symmetric", 8, 2, 11, 2, -2),
    Sketcher.Constraint("Symmetric", 21, 2, 31, 2, -2),
    Sketcher.Constraint("Parallel", 4, 14),
    Sketcher.Constraint("Horizontal", 6, 2, 13, 2),
    Sketcher.Constraint("Horizontal", 3, 2, 16, 2),
    Sketcher.Constraint("Horizontal", 2, 2, 17, 2),
    Sketcher.Constraint("Horizontal", 27, 2, 32, 2),
    Sketcher.Constraint("Horizontal", 26, 2, 34, 2),
    Sketcher.Constraint("Diameter", 28, Q("5.38 mm")),
    Sketcher.Constraint("Radius", 3, Q("2.06 mm")),
    Sketcher.Constraint("Radius", 5, Q("15.825 mm")),
    Sketcher.Constraint("Radius", 27, Q("14.385 mm")),
    Sketcher.Constraint("DistanceX", 0, 1, 0, 2, Q("8.77 mm")),
    Sketcher.Constraint("DistanceX", 22, 1, 22, 2, Q("1.75 mm")),
    Sketcher.Constraint("DistanceY", 1, 1, 1, 2, Q("5.11 mm")),
    Sketcher.Constraint("DistanceY", 21, 1, 21, 2, Q("5.82 mm")),
    Sketcher.Constraint("DistanceY", 23, 1, 23, 2, Q("3.26 mm")),
    Sketcher.Constraint("DistanceY", -1, 1, 0, 2, Q("3.5 mm")),
    Sketcher.Constraint("DistanceX", 13, 3, 7, 3, Q("18.3 mm")),
    Sketcher.Constraint("DistanceX", 20, 2, 11, 2, Q("1.16 mm")),
    Sketcher.Constraint("Distance", 16, Q("1.775 mm")),
    Sketcher.Constraint("DistanceX", 2, 1, 2, 2, Q("4.584562 mm")),
    Sketcher.Constraint("DistanceX", 15, 1, 16, 2, Q("1.340499 mm")),
])
pad6 = body2.newObject("PartDesign::Pad", "Pad005")
pad6.Profile = sketch6
pad6.Length = 3.45
doc.recompute()

boolean = body.newObject("PartDesign::Boolean", "Boolean")
boolean.Type = "Fuse"
boolean.addObjects([body2])

# Sketch on XZ plane
sketch7 = body.newObject("Sketcher::SketchObject", "Sketch006")
sketch7.AttachmentSupport = (doc.getObject("XZ_Plane"), [""])
sketch7.MapMode = "FlatFace"
add_polygon(sketch7, [(3.795, 3.5), (3.795, -3.5), (-3.795, -3.5), (-3.795, 3.5)])  # lines 0-3
sketch7.addGeometry(Part.Circle(V(0, 0, 0), V(0, 0, 1), 2.69), False)  # 4
sketch7.addConstraint([
    Sketcher.Constraint("Vertical", 0),
    Sketcher.Constraint("Horizontal", 1),
    Sketcher.Constraint("Vertical", 2),
    Sketcher.Constraint("Horizontal", 3),
    Sketcher.Constraint("Coincident", 4, 3, -1, 1),
    Sketcher.Constraint("Symmetric", 0, 2, 2, 2, -1, 1),
    Sketcher.Constraint("Diameter", 4, Q("5.38 mm")),
    Sketcher.Constraint("DistanceY", 0, 2, 0, 1, Q("7 mm")),
    Sketcher.Constraint("DistanceX", 1, 2, 1, 1, Q("7.59 mm")),
])
pad7 = body.newObject("PartDesign::Pad", "Pad006")
pad7.Profile = sketch7
pad7.Length = 5.5

doc.recompute()
